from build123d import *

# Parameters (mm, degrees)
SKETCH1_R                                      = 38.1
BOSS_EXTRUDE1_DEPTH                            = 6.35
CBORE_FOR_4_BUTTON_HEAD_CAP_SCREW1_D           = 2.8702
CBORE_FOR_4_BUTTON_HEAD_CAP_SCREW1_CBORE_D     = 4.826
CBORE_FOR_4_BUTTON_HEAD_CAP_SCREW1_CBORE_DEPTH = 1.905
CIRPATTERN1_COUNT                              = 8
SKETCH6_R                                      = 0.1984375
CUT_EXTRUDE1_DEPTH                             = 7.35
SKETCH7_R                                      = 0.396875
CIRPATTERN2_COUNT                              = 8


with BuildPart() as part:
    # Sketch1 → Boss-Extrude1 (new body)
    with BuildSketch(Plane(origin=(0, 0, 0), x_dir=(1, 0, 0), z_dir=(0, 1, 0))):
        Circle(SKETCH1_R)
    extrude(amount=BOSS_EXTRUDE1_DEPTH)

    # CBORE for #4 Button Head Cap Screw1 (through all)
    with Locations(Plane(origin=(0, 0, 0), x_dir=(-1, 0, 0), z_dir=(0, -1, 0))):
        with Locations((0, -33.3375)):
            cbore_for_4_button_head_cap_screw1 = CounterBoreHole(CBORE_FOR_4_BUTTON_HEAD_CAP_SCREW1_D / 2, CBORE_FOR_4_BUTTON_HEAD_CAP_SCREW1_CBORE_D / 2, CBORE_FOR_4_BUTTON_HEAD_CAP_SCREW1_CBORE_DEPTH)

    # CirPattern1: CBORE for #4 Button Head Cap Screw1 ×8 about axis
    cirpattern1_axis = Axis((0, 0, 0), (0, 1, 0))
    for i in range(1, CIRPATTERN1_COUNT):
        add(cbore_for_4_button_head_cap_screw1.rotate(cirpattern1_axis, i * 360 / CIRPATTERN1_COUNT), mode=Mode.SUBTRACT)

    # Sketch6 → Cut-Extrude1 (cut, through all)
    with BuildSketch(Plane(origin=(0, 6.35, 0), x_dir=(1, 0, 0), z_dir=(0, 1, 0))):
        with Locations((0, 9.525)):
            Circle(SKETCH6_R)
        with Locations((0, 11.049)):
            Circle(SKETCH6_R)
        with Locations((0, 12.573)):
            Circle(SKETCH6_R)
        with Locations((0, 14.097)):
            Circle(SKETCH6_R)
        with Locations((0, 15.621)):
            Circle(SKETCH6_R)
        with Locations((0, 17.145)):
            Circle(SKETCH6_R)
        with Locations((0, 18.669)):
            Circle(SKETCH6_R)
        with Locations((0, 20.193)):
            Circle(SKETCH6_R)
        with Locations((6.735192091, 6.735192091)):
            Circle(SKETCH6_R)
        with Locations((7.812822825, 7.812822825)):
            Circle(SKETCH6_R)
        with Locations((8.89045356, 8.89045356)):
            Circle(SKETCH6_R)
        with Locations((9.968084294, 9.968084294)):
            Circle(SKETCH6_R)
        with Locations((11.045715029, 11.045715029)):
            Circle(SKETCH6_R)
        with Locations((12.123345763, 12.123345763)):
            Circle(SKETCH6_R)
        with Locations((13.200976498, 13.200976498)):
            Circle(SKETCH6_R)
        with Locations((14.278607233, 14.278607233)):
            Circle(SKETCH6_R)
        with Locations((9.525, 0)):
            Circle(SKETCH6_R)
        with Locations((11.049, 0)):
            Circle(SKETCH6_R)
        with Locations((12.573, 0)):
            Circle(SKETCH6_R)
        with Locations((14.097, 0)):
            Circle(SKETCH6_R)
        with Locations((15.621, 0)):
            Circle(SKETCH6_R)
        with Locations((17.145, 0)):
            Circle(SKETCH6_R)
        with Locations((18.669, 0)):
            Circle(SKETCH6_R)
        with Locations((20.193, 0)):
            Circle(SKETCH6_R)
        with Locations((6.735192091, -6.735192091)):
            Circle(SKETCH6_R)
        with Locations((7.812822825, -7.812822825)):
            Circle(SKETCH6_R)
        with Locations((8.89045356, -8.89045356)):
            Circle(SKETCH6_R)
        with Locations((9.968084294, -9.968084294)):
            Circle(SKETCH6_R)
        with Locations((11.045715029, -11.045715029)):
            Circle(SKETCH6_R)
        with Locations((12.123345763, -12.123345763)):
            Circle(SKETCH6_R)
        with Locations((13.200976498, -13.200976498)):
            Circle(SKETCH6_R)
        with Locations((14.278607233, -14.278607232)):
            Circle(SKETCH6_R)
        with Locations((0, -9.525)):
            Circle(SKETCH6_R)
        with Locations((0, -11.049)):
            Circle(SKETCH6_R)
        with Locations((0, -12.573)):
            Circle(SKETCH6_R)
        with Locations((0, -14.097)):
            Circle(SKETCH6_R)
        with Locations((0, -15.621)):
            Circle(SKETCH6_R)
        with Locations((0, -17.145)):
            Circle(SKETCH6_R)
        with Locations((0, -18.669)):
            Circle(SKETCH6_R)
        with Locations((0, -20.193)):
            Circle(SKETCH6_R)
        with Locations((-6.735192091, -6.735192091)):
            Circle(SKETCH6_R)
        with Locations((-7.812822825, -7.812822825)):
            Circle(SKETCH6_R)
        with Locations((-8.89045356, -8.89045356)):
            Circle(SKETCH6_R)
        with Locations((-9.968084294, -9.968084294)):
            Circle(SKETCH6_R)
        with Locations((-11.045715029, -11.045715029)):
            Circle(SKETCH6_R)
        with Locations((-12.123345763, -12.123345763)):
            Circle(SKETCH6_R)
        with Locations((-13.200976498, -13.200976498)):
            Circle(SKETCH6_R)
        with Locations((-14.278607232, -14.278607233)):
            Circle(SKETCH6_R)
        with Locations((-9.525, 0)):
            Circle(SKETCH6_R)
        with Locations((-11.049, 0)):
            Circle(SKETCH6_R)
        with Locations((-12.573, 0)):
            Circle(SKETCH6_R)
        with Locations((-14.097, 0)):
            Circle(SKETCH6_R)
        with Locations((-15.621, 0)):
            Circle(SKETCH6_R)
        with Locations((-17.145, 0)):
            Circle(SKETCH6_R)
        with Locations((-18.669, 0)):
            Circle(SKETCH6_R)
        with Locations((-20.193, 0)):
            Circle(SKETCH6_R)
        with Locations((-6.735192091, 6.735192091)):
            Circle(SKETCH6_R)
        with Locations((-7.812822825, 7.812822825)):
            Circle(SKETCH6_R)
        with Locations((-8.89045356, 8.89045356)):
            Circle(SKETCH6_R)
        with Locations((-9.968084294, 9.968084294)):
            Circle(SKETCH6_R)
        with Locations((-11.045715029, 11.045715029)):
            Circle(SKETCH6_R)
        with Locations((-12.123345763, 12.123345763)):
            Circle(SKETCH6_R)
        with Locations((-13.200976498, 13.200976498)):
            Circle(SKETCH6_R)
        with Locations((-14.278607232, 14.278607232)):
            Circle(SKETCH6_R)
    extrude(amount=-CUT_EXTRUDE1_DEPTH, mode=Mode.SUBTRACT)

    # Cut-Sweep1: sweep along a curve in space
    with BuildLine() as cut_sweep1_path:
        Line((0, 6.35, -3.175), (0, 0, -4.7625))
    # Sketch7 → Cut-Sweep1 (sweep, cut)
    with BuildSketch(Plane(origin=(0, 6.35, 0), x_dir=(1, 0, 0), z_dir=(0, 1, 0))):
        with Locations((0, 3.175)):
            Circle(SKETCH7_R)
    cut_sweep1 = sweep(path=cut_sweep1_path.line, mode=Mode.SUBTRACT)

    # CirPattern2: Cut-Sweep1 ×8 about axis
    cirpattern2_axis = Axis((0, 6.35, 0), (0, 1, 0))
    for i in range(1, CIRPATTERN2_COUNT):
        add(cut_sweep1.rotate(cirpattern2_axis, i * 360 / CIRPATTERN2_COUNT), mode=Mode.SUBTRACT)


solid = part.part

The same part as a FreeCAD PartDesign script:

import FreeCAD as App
import Part
import Sketcher
from FreeCAD import Vector
Q = App.Units.Quantity

doc = App.newDocument("Part")
body = doc.addObject("PartDesign::Body", "Body")

# Sketch on XZ plane
sketch1 = body.newObject("Sketcher::SketchObject", "Sketch")
sketch1.AttachmentSupport = (doc.getObject("XZ_Plane"), [""])
sketch1.MapMode = "FlatFace"
sketch1.addGeometry(Part.Circle(Vector(0, 0, 0), Vector(0, 0, 1), 38), False)
sketch1.addConstraint([
    Sketcher.Constraint("Coincident", 0, 3, -1, 1),
    Sketcher.Constraint("Diameter", 0, Q("3 in")),
])
pad1 = body.newObject("PartDesign::Pad", "Pad")
pad1.Profile = sketch1
pad1.Length = Q("0.25 in")
pad1.Reversed = True

# Sketch on XZ plane
sketch2 = body.newObject("Sketcher::SketchObject", "Sketch001")
sketch2.AttachmentSupport = (doc.getObject("XZ_Plane"), [""])
sketch2.MapMode = "FlatFace"
sketch2.addGeometry(Part.Circle(Vector(0, 33.3, 0), Vector(0, 0, 1), 1.4), False)
sketch2.addConstraint([
    Sketcher.Constraint("PointOnObject", 0, 3, -2),
    Sketcher.Constraint("Diameter", 0, Q("0.113 in")),
    Sketcher.Constraint("DistanceY", -1, 1, 0, 3, Q("1.3125 in")),
])
doc.recompute()
hole = body.newObject("PartDesign::Hole", "Hole")
hole.Profile = sketch2
hole.ThreadType = "None"
hole.Diameter = Q("0.113 in")
hole.DepthType = "ThroughAll"
hole.HoleCutType = "Counterbore"
hole.HoleCutDiameter = Q("0.19 in")
hole.HoleCutDepth = Q("0.075 in")
doc.recompute()

polarpattern = body.newObject("PartDesign::PolarPattern", "PolarPattern")
polarpattern.Originals = [hole]
polarpattern.Axis = (doc.getObject("Y_Axis"), [""])
polarpattern.Angle = 360
polarpattern.Occurrences = 8
body.Tip = polarpattern

# Sketch on XZ plane
sketch3 = body.newObject("Sketcher::SketchObject", "Sketch002")
sketch3.AttachmentSupport = (doc.getObject("XZ_Plane"), [""])
sketch3.MapMode = "FlatFace"
sketch3.AttachmentOffset = App.Placement(Vector(0, 0, -0.25 * 25.4), App.Rotation())
sketch3.addGeometry([
    Part.Circle(Vector(0, -9.53, 0), Vector(0, 0, 1), 0.2),  # 0
    Part.Circle(Vector(0, -11.05, 0), Vector(0, 0, 1), 0.2),  # 1
    Part.Circle(Vector(0, -12.57, 0), Vector(0, 0, 1), 0.2),  # 2
    Part.Circle(Vector(0, -14.1, 0), Vector(0, 0, 1), 0.2),  # 3
    Part.Circle(Vector(0, -15.62, 0), Vector(0, 0, 1), 0.2),  # 4
    Part.Circle(Vector(0, -17.14, 0), Vector(0, 0, 1), 0.2),  # 5
    Part.Circle(Vector(0, -18.67, 0), Vector(0, 0, 1), 0.2),  # 6
    Part.Circle(Vector(0, -20.19, 0), Vector(0, 0, 1), 0.2),  # 7
    Part.Circle(Vector(6.74, -6.74, 0), Vector(0, 0, 1), 0.2),  # 8
    Part.Circle(Vector(7.81, -7.81, 0), Vector(0, 0, 1), 0.2),  # 9
    Part.Circle(Vector(8.89, -8.89, 0), Vector(0, 0, 1), 0.2),  # 10
    Part.Circle(Vector(9.97, -9.97, 0), Vector(0, 0, 1), 0.2),  # 11
    Part.Circle(Vector(11.05, -11.05, 0), Vector(0, 0, 1), 0.2),  # 12
    Part.Circle(Vector(12.12, -12.12, 0), Vector(0, 0, 1), 0.2),  # 13
    Part.Circle(Vector(13.2, -13.2, 0), Vector(0, 0, 1), 0.2),  # 14
    Part.Circle(Vector(14.28, -14.28, 0), Vector(0, 0, 1), 0.2),  # 15
    Part.Circle(Vector(9.53, 0, 0), Vector(0, 0, 1), 0.2),  # 16
    Part.Circle(Vector(11.05, 0, 0), Vector(0, 0, 1), 0.2),  # 17
    Part.Circle(Vector(12.57, 0, 0), Vector(0, 0, 1), 0.2),  # 18
    Part.Circle(Vector(14.1, 0, 0), Vector(0, 0, 1), 0.2),  # 19
    Part.Circle(Vector(15.62, 0, 0), Vector(0, 0, 1), 0.2),  # 20
    Part.Circle(Vector(17.14, 0, 0), Vector(0, 0, 1), 0.2),  # 21
    Part.Circle(Vector(18.67, 0, 0), Vector(0, 0, 1), 0.2),  # 22
    Part.Circle(Vector(20.19, 0, 0), Vector(0, 0, 1), 0.2),  # 23
    Part.Circle(Vector(6.74, 6.74, 0), Vector(0, 0, 1), 0.2),  # 24
    Part.Circle(Vector(7.81, 7.81, 0), Vector(0, 0, 1), 0.2),  # 25
    Part.Circle(Vector(8.89, 8.89, 0), Vector(0, 0, 1), 0.2),  # 26
    Part.Circle(Vector(9.97, 9.97, 0), Vector(0, 0, 1), 0.2),  # 27
    Part.Circle(Vector(11.05, 11.05, 0), Vector(0, 0, 1), 0.2),  # 28
    Part.Circle(Vector(12.12, 12.12, 0), Vector(0, 0, 1), 0.2),  # 29
    Part.Circle(Vector(13.2, 13.2, 0), Vector(0, 0, 1), 0.2),  # 30
    Part.Circle(Vector(14.28, 14.28, 0), Vector(0, 0, 1), 0.2),  # 31
    Part.Circle(Vector(0, 9.53, 0), Vector(0, 0, 1), 0.2),  # 32
    Part.Circle(Vector(0, 11.05, 0), Vector(0, 0, 1), 0.2),  # 33
    Part.Circle(Vector(0, 12.57, 0), Vector(0, 0, 1), 0.2),  # 34
    Part.Circle(Vector(0, 14.1, 0), Vector(0, 0, 1), 0.2),  # 35
    Part.Circle(Vector(0, 15.62, 0), Vector(0, 0, 1), 0.2),  # 36
    Part.Circle(Vector(0, 17.14, 0), Vector(0, 0, 1), 0.2),  # 37
    Part.Circle(Vector(0, 18.67, 0), Vector(0, 0, 1), 0.2),  # 38
    Part.Circle(Vector(0, 20.19, 0), Vector(0, 0, 1), 0.2),  # 39
    Part.Circle(Vector(-6.74, 6.74, 0), Vector(0, 0, 1), 0.2),  # 40
    Part.Circle(Vector(-7.81, 7.81, 0), Vector(0, 0, 1), 0.2),  # 41
    Part.Circle(Vector(-8.89, 8.89, 0), Vector(0, 0, 1), 0.2),  # 42
    Part.Circle(Vector(-9.97, 9.97, 0), Vector(0, 0, 1), 0.2),  # 43
    Part.Circle(Vector(-11.05, 11.05, 0), Vector(0, 0, 1), 0.2),  # 44
    Part.Circle(Vector(-12.12, 12.12, 0), Vector(0, 0, 1), 0.2),  # 45
    Part.Circle(Vector(-13.2, 13.2, 0), Vector(0, 0, 1), 0.2),  # 46
    Part.Circle(Vector(-14.28, 14.28, 0), Vector(0, 0, 1), 0.2),  # 47
    Part.Circle(Vector(-9.53, 0, 0), Vector(0, 0, 1), 0.2),  # 48
    Part.Circle(Vector(-11.05, 0, 0), Vector(0, 0, 1), 0.2),  # 49
    Part.Circle(Vector(-12.57, 0, 0), Vector(0, 0, 1), 0.2),  # 50
    Part.Circle(Vector(-14.1, 0, 0), Vector(0, 0, 1), 0.2),  # 51
    Part.Circle(Vector(-15.62, 0, 0), Vector(0, 0, 1), 0.2),  # 52
    Part.Circle(Vector(-17.14, 0, 0), Vector(0, 0, 1), 0.2),  # 53
    Part.Circle(Vector(-18.67, 0, 0), Vector(0, 0, 1), 0.2),  # 54
    Part.Circle(Vector(-20.19, 0, 0), Vector(0, 0, 1), 0.2),  # 55
    Part.Circle(Vector(-6.74, -6.74, 0), Vector(0, 0, 1), 0.2),  # 56
    Part.Circle(Vector(-7.81, -7.81, 0), Vector(0, 0, 1), 0.2),  # 57
    Part.Circle(Vector(-8.89, -8.89, 0), Vector(0, 0, 1), 0.2),  # 58
    Part.Circle(Vector(-9.97, -9.97, 0), Vector(0, 0, 1), 0.2),  # 59
    Part.Circle(Vector(-11.05, -11.05, 0), Vector(0, 0, 1), 0.2),  # 60
    Part.Circle(Vector(-12.12, -12.12, 0), Vector(0, 0, 1), 0.2),  # 61
    Part.Circle(Vector(-13.2, -13.2, 0), Vector(0, 0, 1), 0.2),  # 62
    Part.Circle(Vector(-14.28, -14.28, 0), Vector(0, 0, 1), 0.2),  # 63
], False)
sketch3.addConstraint([
    Sketcher.Constraint("Equal", 0, 1),
    Sketcher.Constraint("Equal", 1, 2),
    Sketcher.Constraint("Equal", 2, 3),
    Sketcher.Constraint("Equal", 3, 4),
    Sketcher.Constraint("Equal", 4, 5),
    Sketcher.Constraint("Equal", 5, 6),
    Sketcher.Constraint("Equal", 6, 7),
    Sketcher.Constraint("Equal", 7, 8),
    Sketcher.Constraint("Equal", 8, 9),
    Sketcher.Constraint("Equal", 9, 10),
    Sketcher.Constraint("Equal", 10, 11),
    Sketcher.Constraint("Equal", 11, 12),
    Sketcher.Constraint("Equal", 12, 13),
    Sketcher.Constraint("Equal", 13, 14),
    Sketcher.Constraint("Equal", 14, 15),
    Sketcher.Constraint("Equal", 15, 16),
    Sketcher.Constraint("Equal", 16, 17),
    Sketcher.Constraint("Equal", 17, 18),
    Sketcher.Constraint("Equal", 18, 19),
    Sketcher.Constraint("Equal", 19, 20),
    Sketcher.Constraint("Equal", 20, 21),
    Sketcher.Constraint("Equal", 21, 22),
    Sketcher.Constraint("Equal", 22, 23),
    Sketcher.Constraint("Equal", 23, 24),
    Sketcher.Constraint("Equal", 24, 25),
    Sketcher.Constraint("Equal", 25, 26),
    Sketcher.Constraint("Equal", 26, 27),
    Sketcher.Constraint("Equal", 27, 28),
    Sketcher.Constraint("Equal", 28, 29),
    Sketcher.Constraint("Equal", 29, 30),
    Sketcher.Constraint("Equal", 30, 31),
    Sketcher.Constraint("Equal", 31, 32),
    Sketcher.Constraint("Equal", 32, 33),
    Sketcher.Constraint("Equal", 33, 34),
    Sketcher.Constraint("Equal", 34, 35),
    Sketcher.Constraint("Equal", 35, 36),
    Sketcher.Constraint("Equal", 36, 37),
    Sketcher.Constraint("Equal", 37, 38),
    Sketcher.Constraint("Equal", 38, 39),
    Sketcher.Constraint("Equal", 39, 40),
    Sketcher.Constraint("Equal", 40, 41),
    Sketcher.Constraint("Equal", 41, 42),
    Sketcher.Constraint("Equal", 42, 43),
    Sketcher.Constraint("Equal", 43, 44),
    Sketcher.Constraint("Equal", 44, 45),
    Sketcher.Constraint("Equal", 45, 46),
    Sketcher.Constraint("Equal", 46, 47),
    Sketcher.Constraint("Equal", 47, 48),
    Sketcher.Constraint("Equal", 48, 49),
    Sketcher.Constraint("Equal", 49, 50),
    Sketcher.Constraint("Equal", 50, 51),
    Sketcher.Constraint("Equal", 51, 52),
    Sketcher.Constraint("Equal", 52, 53),
    Sketcher.Constraint("Equal", 53, 54),
    Sketcher.Constraint("Equal", 54, 55),
    Sketcher.Constraint("Equal", 55, 56),
    Sketcher.Constraint("Equal", 56, 57),
    Sketcher.Constraint("Equal", 57, 58),
    Sketcher.Constraint("Equal", 58, 59),
    Sketcher.Constraint("Equal", 59, 60),
    Sketcher.Constraint("Equal", 60, 61),
    Sketcher.Constraint("Equal", 61, 62),
    Sketcher.Constraint("Equal", 62, 63),
    Sketcher.Constraint("Symmetric", 0, 3, 32, 3, -1, 1),
    Sketcher.Constraint("Symmetric", 1, 3, 33, 3, -1, 1),
    Sketcher.Constraint("Symmetric", 2, 3, 34, 3, -1, 1),
    Sketcher.Constraint("Symmetric", 3, 3, 35, 3, -1, 1),
    Sketcher.Constraint("Symmetric", 4, 3, 36, 3, -1, 1),
    Sketcher.Constraint("Symmetric", 5, 3, 37, 3, -1, 1),
    Sketcher.Constraint("Symmetric", 6, 3, 38, 3, -1, 1),
    Sketcher.Constraint("Symmetric", 7, 3, 39, 3, -1, 1),
    Sketcher.Constraint("Symmetric", 8, 3, 40, 3, -1, 1),
    Sketcher.Constraint("Symmetric", 9, 3, 41, 3, -1, 1),
    Sketcher.Constraint("Symmetric", 10, 3, 42, 3, -1, 1),
    Sketcher.Constraint("Symmetric", 11, 3, 43, 3, -1, 1),
    Sketcher.Constraint("Symmetric", 12, 3, 44, 3, -1, 1),
    Sketcher.Constraint("Symmetric", 13, 3, 45, 3, -1, 1),
    Sketcher.Constraint("Symmetric", 14, 3, 46, 3, -1, 1),
    Sketcher.Constraint("Symmetric", 15, 3, 47, 3, -1, 1),
    Sketcher.Constraint("Symmetric", 16, 3, 48, 3, -1, 1),
    Sketcher.Constraint("Symmetric", 17, 3, 49, 3, -1, 1),
    Sketcher.Constraint("Symmetric", 18, 3, 50, 3, -1, 1),
    Sketcher.Constraint("Symmetric", 19, 3, 51, 3, -1, 1),
    Sketcher.Constraint("Symmetric", 20, 3, 52, 3, -1, 1),
    Sketcher.Constraint("Symmetric", 21, 3, 53, 3, -1, 1),
    Sketcher.Constraint("Symmetric", 22, 3, 54, 3, -1, 1),
    Sketcher.Constraint("Symmetric", 23, 3, 55, 3, -1, 1),
    Sketcher.Constraint("Symmetric", 24, 3, 56, 3, -1, 1),
    Sketcher.Constraint("Symmetric", 25, 3, 57, 3, -1, 1),
    Sketcher.Constraint("Symmetric", 26, 3, 58, 3, -1, 1),
    Sketcher.Constraint("Symmetric", 27, 3, 59, 3, -1, 1),
    Sketcher.Constraint("Symmetric", 28, 3, 60, 3, -1, 1),
    Sketcher.Constraint("Symmetric", 29, 3, 61, 3, -1, 1),
    Sketcher.Constraint("Symmetric", 30, 3, 62, 3, -1, 1),
    Sketcher.Constraint("Symmetric", 31, 3, 63, 3, -1, 1),
    Sketcher.Constraint("Symmetric", 24, 3, 40, 3, -2),
    Sketcher.Constraint("Symmetric", 25, 3, 41, 3, -2),
    Sketcher.Constraint("Symmetric", 26, 3, 42, 3, -2),
    Sketcher.Constraint("Symmetric", 27, 3, 43, 3, -2),
    Sketcher.Constraint("Symmetric", 28, 3, 44, 3, -2),
    Sketcher.Constraint("Symmetric", 29, 3, 45, 3, -2),
    Sketcher.Constraint("Symmetric", 30, 3, 46, 3, -2),
    Sketcher.Constraint("Symmetric", 31, 3, 47, 3, -2),
    Sketcher.Constraint("PointOnObject", 0, 3, -2),
    Sketcher.Constraint("PointOnObject", 1, 3, -2),
    Sketcher.Constraint("PointOnObject", 2, 3, -2),
    Sketcher.Constraint("PointOnObject", 3, 3, -2),
    Sketcher.Constraint("PointOnObject", 4, 3, -2),
    Sketcher.Constraint("PointOnObject", 5, 3, -2),
    Sketcher.Constraint("PointOnObject", 6, 3, -2),
    Sketcher.Constraint("PointOnObject", 7, 3, -2),
    Sketcher.Constraint("PointOnObject", 16, 3, -1),
    Sketcher.Constraint("PointOnObject", 17, 3, -1),
    Sketcher.Constraint("PointOnObject", 18, 3, -1),
    Sketcher.Constraint("PointOnObject", 19, 3, -1),
    Sketcher.Constraint("PointOnObject", 20, 3, -1),
    Sketcher.Constraint("PointOnObject", 21, 3, -1),
    Sketcher.Constraint("PointOnObject", 22, 3, -1),
    Sketcher.Constraint("PointOnObject", 23, 3, -1),
    Sketcher.Constraint("Diameter", 0, Q("0.015625 in")),
    Sketcher.Constraint("DistanceY", 0, 3, -1, 1, Q("0.375 in")),
    Sketcher.Constraint("DistanceY", 1, 3, -1, 1, Q("0.435 in")),
    Sketcher.Constraint("DistanceY", 2, 3, -1, 1, Q("0.495 in")),
    Sketcher.Constraint("DistanceY", 3, 3, -1, 1, Q("0.555 in")),
    Sketcher.Constraint("DistanceY", 4, 3, -1, 1, Q("0.615 in")),
    Sketcher.Constraint("DistanceY", 5, 3, -1, 1, Q("0.675 in")),
    Sketcher.Constraint("DistanceY", 6, 3, -1, 1, Q("0.735 in")),
    Sketcher.Constraint("DistanceY", 7, 3, -1, 1, Q("0.795 in")),
    Sketcher.Constraint("DistanceX", -1, 1, 16, 3, Q("0.375 in")),
    Sketcher.Constraint("DistanceX", -1, 1, 17, 3, Q("0.435 in")),
    Sketcher.Constraint("DistanceX", -1, 1, 18, 3, Q("0.495 in")),
    Sketcher.Constraint("DistanceX", -1, 1, 19, 3, Q("0.555 in")),
    Sketcher.Constraint("DistanceX", -1, 1, 20, 3, Q("0.615 in")),
    Sketcher.Constraint("DistanceX", -1, 1, 21, 3, Q("0.675 in")),
    Sketcher.Constraint("DistanceX", -1, 1, 22, 3, Q("0.735 in")),
    Sketcher.Constraint("DistanceX", -1, 1, 23, 3, Q("0.795 in")),
    Sketcher.Constraint("DistanceX", -1, 1, 8, 3, 6.735192),
    Sketcher.Constraint("DistanceY", 8, 3, -1, 1, 6.735192),
    Sketcher.Constraint("DistanceX", -1, 1, 9, 3, 7.812823),
    Sketcher.Constraint("DistanceY", 9, 3, -1, 1, 7.812823),
    Sketcher.Constraint("DistanceX", -1, 1, 10, 3, 8.890454),
    Sketcher.Constraint("DistanceY", 10, 3, -1, 1, 8.890454),
    Sketcher.Constraint("DistanceX", -1, 1, 11, 3, 9.968084),
    Sketcher.Constraint("DistanceY", 11, 3, -1, 1, 9.968084),
    Sketcher.Constraint("DistanceX", -1, 1, 12, 3, 11.045715),
    Sketcher.Constraint("DistanceY", 12, 3, -1, 1, 11.045715),
    Sketcher.Constraint("DistanceX", -1, 1, 13, 3, 12.123346),
    Sketcher.Constraint("DistanceY", 13, 3, -1, 1, 12.123346),
    Sketcher.Constraint("DistanceX", -1, 1, 14, 3, 13.200976),
    Sketcher.Constraint("DistanceY", 14, 3, -1, 1, 13.200976),
    Sketcher.Constraint("DistanceX", -1, 1, 15, 3, 14.278607),
    Sketcher.Constraint("DistanceY", 15, 3, -1, 1, 14.278607),
])
pocket1 = body.newObject("PartDesign::Pocket", "Pocket")
pocket1.Profile = sketch3
pocket1.Type = "ThroughAll"
pocket1.Reversed = True

# Sketch on XZ plane
sketch4 = body.newObject("Sketcher::SketchObject", "Sketch003")
sketch4.AttachmentSupport = (doc.getObject("XZ_Plane"), [""])
sketch4.MapMode = "FlatFace"
sketch4.AttachmentOffset = App.Placement(Vector(0, 0, -0.25 * 25.4), App.Rotation())
sketch4.addGeometry(Part.Circle(Vector(0, -3.17, 0), Vector(0, 0, 1), 0.4), False)
sketch4.addConstraint([
    Sketcher.Constraint("PointOnObject", 0, 3, -2),
    Sketcher.Constraint("Diameter", 0, Q("0.03125 in")),
    Sketcher.Constraint("DistanceY", 0, 3, -1, 1, Q("0.125 in")),
])

# Sketch on an angled plane
sketch5 = body.newObject("Sketcher::SketchObject", "Sketch004")
sketch5.Placement = App.Placement(Vector(0, 1.120588, -4.482353), App.Rotation(Vector(0, 0.9701425, 0.242535625), Vector(1, 0, 0), Vector(0, 0.242535625, -0.9701425), "ZXY"))
sketch5.addGeometry(Part.LineSegment(Vector(5, 0, 0), Vector(-1, 0, 0)), False)
sketch5.addConstraint([
    Sketcher.Constraint("Horizontal", 0),
    Sketcher.Constraint("PointOnObject", 0, 1, -1),
    Sketcher.Constraint("DistanceX", 0, 2, 0, 1, 6.54543),
    Sketcher.Constraint("DistanceX", -1, 1, 0, 1, 5.390354),
])
doc.recompute()

subtractivepipe = body.newObject("PartDesign::SubtractivePipe", "SubtractivePipe")
subtractivepipe.Profile = sketch4
subtractivepipe.Spine = (sketch5, ["Edge1"])
doc.recompute()

polarpattern2 = body.newObject("PartDesign::PolarPattern", "PolarPattern001")
polarpattern2.Originals = [subtractivepipe]
polarpattern2.Axis = (doc.getObject("Y_Axis"), [""])
polarpattern2.Angle = 360
polarpattern2.Occurrences = 8
body.Tip = polarpattern2

doc.recompute()
